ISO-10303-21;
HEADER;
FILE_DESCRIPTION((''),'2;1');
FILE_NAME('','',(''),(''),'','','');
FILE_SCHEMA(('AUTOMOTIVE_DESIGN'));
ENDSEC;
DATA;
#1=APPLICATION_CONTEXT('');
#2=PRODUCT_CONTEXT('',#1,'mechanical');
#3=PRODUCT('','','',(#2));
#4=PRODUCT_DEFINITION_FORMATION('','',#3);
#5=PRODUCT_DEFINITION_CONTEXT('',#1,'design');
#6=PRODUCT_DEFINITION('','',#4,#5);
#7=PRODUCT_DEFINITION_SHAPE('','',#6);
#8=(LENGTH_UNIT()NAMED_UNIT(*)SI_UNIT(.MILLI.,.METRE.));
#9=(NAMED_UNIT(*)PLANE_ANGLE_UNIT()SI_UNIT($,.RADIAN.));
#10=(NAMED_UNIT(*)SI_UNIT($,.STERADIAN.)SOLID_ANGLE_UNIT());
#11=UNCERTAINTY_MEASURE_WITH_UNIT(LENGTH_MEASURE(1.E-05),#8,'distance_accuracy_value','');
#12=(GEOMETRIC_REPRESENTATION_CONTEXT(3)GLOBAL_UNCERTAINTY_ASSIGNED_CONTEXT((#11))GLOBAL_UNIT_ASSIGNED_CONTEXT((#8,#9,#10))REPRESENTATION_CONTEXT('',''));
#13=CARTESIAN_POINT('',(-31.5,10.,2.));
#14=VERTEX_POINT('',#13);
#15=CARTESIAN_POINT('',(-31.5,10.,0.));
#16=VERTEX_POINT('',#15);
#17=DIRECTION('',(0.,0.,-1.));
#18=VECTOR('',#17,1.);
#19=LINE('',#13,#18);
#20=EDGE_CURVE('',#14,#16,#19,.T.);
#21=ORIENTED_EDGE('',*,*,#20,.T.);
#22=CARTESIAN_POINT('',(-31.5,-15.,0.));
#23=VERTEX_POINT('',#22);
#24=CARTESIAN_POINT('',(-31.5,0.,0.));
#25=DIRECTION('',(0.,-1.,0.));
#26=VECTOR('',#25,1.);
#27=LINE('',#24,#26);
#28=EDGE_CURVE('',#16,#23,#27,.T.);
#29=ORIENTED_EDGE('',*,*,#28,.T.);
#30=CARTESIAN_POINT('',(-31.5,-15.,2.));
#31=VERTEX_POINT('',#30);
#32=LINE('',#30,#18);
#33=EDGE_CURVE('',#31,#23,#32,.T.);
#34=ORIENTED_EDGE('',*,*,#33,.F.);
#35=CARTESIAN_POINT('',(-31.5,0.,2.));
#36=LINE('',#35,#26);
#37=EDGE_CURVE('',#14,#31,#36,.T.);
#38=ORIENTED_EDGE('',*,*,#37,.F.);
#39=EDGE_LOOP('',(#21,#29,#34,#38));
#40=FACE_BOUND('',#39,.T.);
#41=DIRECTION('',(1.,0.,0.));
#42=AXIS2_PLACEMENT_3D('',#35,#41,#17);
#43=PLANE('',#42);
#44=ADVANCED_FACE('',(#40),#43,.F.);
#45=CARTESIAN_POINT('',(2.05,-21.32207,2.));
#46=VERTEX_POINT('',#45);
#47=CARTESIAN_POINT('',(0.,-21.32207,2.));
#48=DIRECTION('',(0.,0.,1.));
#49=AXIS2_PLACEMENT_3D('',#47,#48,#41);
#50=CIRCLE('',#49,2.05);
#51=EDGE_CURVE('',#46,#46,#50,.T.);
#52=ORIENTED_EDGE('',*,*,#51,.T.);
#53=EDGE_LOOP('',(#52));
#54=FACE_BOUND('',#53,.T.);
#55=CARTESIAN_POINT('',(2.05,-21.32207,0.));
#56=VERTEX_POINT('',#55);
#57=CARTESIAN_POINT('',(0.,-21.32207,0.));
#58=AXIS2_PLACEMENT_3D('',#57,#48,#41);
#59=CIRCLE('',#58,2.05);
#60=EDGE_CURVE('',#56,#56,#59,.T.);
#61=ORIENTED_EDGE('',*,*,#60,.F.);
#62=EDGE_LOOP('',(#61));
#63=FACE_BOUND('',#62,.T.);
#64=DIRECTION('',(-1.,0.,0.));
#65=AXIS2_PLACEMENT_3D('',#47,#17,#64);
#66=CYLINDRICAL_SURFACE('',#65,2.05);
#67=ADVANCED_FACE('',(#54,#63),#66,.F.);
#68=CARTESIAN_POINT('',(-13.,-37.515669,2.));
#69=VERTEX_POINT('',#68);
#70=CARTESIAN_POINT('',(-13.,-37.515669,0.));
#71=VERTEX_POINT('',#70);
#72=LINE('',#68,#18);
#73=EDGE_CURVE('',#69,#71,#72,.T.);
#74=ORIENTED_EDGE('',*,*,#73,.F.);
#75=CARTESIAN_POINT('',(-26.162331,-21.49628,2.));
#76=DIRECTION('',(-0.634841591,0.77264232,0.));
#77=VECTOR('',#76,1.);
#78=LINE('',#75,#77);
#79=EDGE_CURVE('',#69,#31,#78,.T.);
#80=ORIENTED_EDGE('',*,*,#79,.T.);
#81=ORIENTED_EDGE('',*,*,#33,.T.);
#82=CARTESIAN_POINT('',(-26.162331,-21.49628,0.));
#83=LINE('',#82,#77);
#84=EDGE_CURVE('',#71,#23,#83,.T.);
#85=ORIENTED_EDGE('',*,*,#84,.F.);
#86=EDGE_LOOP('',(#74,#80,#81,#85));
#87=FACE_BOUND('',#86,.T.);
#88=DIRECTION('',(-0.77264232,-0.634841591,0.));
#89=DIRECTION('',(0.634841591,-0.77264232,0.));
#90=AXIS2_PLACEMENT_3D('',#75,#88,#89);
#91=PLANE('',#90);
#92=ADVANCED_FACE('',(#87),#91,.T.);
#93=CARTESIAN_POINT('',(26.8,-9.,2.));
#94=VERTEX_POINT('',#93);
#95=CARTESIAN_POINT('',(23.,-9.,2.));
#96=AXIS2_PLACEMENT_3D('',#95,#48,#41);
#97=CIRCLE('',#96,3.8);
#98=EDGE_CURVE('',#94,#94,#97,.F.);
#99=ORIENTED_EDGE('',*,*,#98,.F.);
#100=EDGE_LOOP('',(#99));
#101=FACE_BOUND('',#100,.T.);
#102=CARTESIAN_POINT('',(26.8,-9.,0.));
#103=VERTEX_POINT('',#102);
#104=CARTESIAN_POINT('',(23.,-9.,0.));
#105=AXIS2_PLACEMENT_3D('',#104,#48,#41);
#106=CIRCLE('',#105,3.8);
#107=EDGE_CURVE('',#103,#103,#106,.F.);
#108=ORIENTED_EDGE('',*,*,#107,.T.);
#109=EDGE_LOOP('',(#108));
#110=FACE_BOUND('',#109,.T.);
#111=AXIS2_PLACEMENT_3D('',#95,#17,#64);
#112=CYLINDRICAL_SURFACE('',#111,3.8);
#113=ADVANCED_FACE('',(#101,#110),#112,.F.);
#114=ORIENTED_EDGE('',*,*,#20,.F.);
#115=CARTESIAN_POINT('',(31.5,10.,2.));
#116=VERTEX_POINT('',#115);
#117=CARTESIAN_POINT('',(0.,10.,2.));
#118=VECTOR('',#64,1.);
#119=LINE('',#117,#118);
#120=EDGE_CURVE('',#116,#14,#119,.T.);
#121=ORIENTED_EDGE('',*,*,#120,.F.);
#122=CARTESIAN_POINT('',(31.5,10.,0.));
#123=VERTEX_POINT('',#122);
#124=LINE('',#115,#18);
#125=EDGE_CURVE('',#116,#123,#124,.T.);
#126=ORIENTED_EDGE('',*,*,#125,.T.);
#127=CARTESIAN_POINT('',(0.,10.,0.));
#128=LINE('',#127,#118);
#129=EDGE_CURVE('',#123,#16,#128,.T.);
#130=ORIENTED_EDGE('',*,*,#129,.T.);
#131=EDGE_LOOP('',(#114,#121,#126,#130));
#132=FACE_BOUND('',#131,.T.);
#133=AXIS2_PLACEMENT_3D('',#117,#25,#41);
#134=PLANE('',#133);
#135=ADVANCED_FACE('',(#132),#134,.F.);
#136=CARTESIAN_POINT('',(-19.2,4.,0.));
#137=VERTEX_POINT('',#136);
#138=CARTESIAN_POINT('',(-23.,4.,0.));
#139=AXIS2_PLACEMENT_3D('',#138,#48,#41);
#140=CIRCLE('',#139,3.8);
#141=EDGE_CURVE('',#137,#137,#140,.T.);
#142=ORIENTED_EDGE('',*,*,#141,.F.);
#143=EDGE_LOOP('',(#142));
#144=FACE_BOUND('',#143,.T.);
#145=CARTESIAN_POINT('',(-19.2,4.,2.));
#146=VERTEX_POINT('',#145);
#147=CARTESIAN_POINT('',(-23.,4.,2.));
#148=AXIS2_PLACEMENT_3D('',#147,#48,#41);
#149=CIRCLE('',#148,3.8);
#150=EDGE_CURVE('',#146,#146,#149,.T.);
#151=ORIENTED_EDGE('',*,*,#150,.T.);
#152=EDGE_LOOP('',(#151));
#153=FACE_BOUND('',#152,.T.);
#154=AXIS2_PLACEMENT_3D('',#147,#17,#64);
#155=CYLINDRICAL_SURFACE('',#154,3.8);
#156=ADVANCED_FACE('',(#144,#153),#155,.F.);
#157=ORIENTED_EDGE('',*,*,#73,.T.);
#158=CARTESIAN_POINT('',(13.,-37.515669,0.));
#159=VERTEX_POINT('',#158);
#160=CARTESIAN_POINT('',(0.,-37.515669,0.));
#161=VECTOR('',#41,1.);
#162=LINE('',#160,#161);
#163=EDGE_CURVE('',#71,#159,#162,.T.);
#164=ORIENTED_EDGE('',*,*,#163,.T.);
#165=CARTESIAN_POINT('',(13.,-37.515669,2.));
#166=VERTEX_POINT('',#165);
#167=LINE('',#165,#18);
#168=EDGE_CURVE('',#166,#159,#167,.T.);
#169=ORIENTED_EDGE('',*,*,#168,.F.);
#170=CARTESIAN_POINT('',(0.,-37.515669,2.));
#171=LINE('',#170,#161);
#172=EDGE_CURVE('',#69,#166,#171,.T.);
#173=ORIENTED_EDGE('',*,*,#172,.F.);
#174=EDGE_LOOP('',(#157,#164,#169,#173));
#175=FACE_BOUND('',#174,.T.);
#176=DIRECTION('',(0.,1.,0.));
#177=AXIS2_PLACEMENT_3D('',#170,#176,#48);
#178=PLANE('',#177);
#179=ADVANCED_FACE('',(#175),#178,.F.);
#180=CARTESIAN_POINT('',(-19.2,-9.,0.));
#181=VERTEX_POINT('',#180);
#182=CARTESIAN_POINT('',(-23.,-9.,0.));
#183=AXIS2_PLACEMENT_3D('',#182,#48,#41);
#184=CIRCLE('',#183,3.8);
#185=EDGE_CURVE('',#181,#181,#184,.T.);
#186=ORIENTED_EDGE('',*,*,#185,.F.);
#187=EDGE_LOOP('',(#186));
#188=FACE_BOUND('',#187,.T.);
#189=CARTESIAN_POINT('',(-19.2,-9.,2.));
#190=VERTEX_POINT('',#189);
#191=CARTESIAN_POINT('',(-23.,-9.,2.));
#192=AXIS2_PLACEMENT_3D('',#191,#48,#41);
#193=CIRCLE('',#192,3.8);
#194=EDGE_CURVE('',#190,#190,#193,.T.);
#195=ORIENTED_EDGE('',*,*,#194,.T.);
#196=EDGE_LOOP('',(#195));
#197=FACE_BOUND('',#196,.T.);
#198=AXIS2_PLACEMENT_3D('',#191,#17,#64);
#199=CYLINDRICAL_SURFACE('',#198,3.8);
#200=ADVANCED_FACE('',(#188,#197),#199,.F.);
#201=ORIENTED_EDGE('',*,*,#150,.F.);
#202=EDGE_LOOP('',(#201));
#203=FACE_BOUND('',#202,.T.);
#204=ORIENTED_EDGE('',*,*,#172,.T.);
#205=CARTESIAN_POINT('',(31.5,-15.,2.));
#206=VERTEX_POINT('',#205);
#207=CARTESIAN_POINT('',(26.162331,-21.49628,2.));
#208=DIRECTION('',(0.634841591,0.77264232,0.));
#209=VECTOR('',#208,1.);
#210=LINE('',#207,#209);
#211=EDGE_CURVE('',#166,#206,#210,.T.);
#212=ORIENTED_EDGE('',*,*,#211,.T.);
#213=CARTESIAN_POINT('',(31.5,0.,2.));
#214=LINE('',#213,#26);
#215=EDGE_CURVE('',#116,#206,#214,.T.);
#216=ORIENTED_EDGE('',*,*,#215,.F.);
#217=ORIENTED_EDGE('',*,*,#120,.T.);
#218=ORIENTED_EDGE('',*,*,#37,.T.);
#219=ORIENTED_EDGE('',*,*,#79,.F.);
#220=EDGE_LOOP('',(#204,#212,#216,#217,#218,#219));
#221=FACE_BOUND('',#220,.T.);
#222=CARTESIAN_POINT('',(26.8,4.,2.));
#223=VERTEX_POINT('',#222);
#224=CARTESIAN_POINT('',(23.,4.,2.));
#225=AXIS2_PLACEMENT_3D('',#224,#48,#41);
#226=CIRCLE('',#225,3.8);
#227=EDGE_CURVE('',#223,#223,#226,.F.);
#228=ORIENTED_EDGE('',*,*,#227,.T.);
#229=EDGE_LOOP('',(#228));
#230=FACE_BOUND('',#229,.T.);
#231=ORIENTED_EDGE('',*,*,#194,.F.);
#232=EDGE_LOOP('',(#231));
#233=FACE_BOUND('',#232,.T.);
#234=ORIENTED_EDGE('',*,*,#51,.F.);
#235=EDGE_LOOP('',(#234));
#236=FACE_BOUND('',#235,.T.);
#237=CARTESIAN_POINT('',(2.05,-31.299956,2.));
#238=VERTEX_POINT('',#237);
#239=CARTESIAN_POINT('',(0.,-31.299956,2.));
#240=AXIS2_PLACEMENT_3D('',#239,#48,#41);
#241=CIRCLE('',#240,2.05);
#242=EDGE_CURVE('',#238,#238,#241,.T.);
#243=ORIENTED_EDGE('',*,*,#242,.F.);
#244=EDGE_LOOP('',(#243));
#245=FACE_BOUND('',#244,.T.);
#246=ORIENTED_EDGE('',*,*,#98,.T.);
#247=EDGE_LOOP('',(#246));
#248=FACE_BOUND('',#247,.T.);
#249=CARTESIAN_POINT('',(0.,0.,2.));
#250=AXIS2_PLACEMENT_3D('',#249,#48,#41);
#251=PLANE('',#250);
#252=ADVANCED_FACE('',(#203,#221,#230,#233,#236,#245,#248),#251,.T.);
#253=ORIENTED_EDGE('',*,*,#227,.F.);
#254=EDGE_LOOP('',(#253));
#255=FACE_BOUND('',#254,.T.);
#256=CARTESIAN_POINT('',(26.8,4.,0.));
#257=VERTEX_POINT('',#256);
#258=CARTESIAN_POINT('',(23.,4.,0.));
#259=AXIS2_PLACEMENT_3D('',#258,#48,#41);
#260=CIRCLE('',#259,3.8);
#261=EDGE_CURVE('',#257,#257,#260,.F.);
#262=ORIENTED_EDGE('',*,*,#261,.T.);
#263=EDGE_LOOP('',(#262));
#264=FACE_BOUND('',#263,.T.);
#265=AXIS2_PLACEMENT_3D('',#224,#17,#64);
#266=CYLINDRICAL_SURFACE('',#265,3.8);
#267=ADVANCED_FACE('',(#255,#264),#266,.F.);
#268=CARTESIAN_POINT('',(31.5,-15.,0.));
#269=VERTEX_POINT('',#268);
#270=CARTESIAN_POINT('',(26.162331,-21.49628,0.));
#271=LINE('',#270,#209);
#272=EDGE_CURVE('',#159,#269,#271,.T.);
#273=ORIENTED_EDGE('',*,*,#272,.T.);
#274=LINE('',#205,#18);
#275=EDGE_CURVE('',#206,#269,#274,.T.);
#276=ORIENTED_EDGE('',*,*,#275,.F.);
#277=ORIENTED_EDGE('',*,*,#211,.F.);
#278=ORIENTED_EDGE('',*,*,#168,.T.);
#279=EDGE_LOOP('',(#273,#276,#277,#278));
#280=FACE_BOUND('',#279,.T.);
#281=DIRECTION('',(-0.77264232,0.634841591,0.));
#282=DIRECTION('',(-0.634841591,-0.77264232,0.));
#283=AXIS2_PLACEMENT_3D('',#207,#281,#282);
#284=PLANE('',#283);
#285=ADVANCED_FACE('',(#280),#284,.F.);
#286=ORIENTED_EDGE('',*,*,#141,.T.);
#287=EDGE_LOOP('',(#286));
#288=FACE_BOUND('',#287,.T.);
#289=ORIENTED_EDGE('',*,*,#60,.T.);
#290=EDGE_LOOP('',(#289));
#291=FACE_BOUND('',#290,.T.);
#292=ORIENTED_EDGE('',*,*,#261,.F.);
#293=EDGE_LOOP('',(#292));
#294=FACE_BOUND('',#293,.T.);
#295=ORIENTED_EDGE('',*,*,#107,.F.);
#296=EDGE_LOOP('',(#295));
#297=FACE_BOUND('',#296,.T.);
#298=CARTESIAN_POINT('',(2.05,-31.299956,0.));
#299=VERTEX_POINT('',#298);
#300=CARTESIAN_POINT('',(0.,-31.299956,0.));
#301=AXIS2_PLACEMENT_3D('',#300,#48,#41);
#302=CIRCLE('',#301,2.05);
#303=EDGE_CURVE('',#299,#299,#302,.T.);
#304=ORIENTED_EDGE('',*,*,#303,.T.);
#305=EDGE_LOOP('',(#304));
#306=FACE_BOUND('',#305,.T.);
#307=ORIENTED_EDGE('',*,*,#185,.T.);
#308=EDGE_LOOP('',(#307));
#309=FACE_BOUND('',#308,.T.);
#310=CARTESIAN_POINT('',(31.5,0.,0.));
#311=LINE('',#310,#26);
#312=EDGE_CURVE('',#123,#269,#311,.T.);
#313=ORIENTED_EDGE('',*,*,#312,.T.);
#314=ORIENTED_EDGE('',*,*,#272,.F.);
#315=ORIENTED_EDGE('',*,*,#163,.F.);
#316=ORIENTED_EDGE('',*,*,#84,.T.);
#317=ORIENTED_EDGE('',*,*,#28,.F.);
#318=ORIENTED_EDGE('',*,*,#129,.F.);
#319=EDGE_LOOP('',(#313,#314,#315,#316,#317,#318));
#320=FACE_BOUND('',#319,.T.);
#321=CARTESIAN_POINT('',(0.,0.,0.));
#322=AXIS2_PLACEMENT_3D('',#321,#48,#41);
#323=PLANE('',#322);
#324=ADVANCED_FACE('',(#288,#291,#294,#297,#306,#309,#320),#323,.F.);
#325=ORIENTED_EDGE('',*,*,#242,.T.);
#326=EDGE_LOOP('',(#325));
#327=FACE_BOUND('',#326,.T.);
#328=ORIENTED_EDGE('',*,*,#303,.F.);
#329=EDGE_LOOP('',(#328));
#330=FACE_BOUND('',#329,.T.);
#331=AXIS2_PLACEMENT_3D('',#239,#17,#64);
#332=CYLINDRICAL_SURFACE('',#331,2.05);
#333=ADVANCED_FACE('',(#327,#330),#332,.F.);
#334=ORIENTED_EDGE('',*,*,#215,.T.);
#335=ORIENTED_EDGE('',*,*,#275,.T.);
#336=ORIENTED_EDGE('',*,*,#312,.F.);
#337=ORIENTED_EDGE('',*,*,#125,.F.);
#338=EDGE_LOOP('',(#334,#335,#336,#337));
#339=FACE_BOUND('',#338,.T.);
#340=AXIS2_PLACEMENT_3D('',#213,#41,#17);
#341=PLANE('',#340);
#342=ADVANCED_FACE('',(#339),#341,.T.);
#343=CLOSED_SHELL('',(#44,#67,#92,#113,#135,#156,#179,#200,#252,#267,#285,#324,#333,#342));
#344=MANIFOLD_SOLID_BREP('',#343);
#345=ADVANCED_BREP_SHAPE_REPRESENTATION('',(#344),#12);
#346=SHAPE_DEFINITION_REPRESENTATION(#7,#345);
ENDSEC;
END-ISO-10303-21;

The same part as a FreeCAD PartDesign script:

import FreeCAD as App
import Part
import Sketcher
from FreeCAD import Vector
Q = App.Units.Quantity


def add_polygon(sketch, points):
    """Adds a closed chain of lines whose ends are joined by coincident constraints."""
    first, n = sketch.GeometryCount, len(points)
    for a, b in zip(points, points[1:] + points[:1]):
        sketch.addGeometry(Part.LineSegment(App.Vector(*a, 0), App.Vector(*b, 0)), False)
    for i in range(n):
        sketch.addConstraint(Sketcher.Constraint("Coincident", first + i, 2, first + (i + 1) % n, 1))

doc = App.newDocument("Part")
body = doc.addObject("PartDesign::Body", "Body")

# Sketch on XY plane
sketch1 = doc.addObject("Sketcher::SketchObject", "Sketch")
body.addObject(sketch1)
sketch1.AttachmentSupport = (doc.XY_Plane, [""])
sketch1.MapMode = "FlatFace"
add_polygon(sketch1, [(-31.5, 10), (-31.5, -15), (31.5, -15), (31.5, 10)])  # lines 0-3
sketch1.addGeometry(Part.Circle(Vector(-23, -9, 0), Vector(0, 0, 1), 3.8), False)  # 4
sketch1.addGeometry(Part.Circle(Vector(23, -9, 0), Vector(0, 0, 1), 3.8), False)  # 5
sketch1.addGeometry(Part.Circle(Vector(-23, 4, 0), Vector(0, 0, 1), 3.8), False)  # 6
sketch1.addGeometry(Part.Circle(Vector(23, 4, 0), Vector(0, 0, 1), 3.8), False)  # 7
sketch1.addConstraint([
    Sketcher.Constraint("Vertical", 0),
    Sketcher.Constraint("Horizontal", 1),
    Sketcher.Constraint("Vertical", 2),
    Sketcher.Constraint("Horizontal", 3),
    Sketcher.Constraint("Equal", 4, 5),
    Sketcher.Constraint("Equal", 5, 6),
    Sketcher.Constraint("Equal", 6, 7),
    Sketcher.Constraint("Symmetric", 4, 3, 5, 3, -2),
    Sketcher.Constraint("Symmetric", 6, 3, 7, 3, -2),
    Sketcher.Constraint("Vertical", 4, 3, 6, 3),
    Sketcher.Constraint("Diameter", 4, Q("7.6 mm")),
    Sketcher.Constraint("DistanceX", 1, 1, 1, 2, Q("63 mm")),
    Sketcher.Constraint("DistanceY", 0, 2, 0, 1, Q("25 mm")),
    Sketcher.Constraint("DistanceX", 4, 3, -1, 1, Q("23 mm")),
    Sketcher.Constraint("DistanceY", 4, 3, -1, 1, Q("9 mm")),
    Sketcher.Constraint("DistanceY", -1, 1, 6, 3, Q("4 mm")),
    Sketcher.Constraint("DistanceY", 0, 2, -1, 1, Q("15 mm")),
    Sketcher.Constraint("DistanceX", 0, 2, -1, 1, Q("31.5 mm")),
])
pad1 = doc.addObject("PartDesign::Pad", "Pad")
body.addObject(pad1)
pad1.Profile = sketch1
pad1.Length = 2

# Sketch on XY plane
sketch2 = doc.addObject("Sketcher::SketchObject", "Sketch001")
body.addObject(sketch2)
sketch2.AttachmentSupport = (doc.XY_Plane, [""])
sketch2.MapMode = "FlatFace"
add_polygon(sketch2, [(13, -37.5), (31.5, -15), (-31.5, -15), (-13, -37.5)])  # lines 0-3
sketch2.addGeometry(Part.Circle(Vector(0, -31.3, 0), Vector(0, 0, 1), 2), False)  # 4
sketch2.addGeometry(Part.Circle(Vector(0, -21.3, 0), Vector(0, 0, 1), 2), False)  # 5
sketch2.addConstraint([
    Sketcher.Constraint("Horizontal", 1),
    Sketcher.Constraint("Horizontal", 3),
    Sketcher.Constraint("Equal", 4, 5),
    Sketcher.Constraint("PointOnObject", 4, 3, -2),
    Sketcher.Constraint("PointOnObject", 5, 3, -2),
    Sketcher.Constraint("Equal", 0, 2),
    Sketcher.Constraint("Diameter", 4, Q("4.1 mm")),
    Sketcher.Constraint("DistanceX", 1, 2, 1, 1, Q("63 mm")),
    Sketcher.Constraint("DistanceX", 3, 1, 3, 2, Q("26 mm")),
    Sketcher.Constraint("DistanceY", 0, 2, -1, 1, Q("15 mm")),
    Sketcher.Constraint("DistanceX", 2, 2, -1, 1, Q("13 mm")),
    Sketcher.Constraint("DistanceY", 2, 2, 5, 3, Q("16.193599 mm")),
    Sketcher.Constraint("DistanceY", 5, 3, -1, 1, Q("21.32207 mm")),
    Sketcher.Constraint("DistanceY", 4, 3, -1, 1, Q("31.299956 mm")),
])
pad2 = doc.addObject("PartDesign::Pad", "Pad001")
body.addObject(pad2)
pad2.Profile = sketch2
pad2.Length = 2

doc.recompute()
